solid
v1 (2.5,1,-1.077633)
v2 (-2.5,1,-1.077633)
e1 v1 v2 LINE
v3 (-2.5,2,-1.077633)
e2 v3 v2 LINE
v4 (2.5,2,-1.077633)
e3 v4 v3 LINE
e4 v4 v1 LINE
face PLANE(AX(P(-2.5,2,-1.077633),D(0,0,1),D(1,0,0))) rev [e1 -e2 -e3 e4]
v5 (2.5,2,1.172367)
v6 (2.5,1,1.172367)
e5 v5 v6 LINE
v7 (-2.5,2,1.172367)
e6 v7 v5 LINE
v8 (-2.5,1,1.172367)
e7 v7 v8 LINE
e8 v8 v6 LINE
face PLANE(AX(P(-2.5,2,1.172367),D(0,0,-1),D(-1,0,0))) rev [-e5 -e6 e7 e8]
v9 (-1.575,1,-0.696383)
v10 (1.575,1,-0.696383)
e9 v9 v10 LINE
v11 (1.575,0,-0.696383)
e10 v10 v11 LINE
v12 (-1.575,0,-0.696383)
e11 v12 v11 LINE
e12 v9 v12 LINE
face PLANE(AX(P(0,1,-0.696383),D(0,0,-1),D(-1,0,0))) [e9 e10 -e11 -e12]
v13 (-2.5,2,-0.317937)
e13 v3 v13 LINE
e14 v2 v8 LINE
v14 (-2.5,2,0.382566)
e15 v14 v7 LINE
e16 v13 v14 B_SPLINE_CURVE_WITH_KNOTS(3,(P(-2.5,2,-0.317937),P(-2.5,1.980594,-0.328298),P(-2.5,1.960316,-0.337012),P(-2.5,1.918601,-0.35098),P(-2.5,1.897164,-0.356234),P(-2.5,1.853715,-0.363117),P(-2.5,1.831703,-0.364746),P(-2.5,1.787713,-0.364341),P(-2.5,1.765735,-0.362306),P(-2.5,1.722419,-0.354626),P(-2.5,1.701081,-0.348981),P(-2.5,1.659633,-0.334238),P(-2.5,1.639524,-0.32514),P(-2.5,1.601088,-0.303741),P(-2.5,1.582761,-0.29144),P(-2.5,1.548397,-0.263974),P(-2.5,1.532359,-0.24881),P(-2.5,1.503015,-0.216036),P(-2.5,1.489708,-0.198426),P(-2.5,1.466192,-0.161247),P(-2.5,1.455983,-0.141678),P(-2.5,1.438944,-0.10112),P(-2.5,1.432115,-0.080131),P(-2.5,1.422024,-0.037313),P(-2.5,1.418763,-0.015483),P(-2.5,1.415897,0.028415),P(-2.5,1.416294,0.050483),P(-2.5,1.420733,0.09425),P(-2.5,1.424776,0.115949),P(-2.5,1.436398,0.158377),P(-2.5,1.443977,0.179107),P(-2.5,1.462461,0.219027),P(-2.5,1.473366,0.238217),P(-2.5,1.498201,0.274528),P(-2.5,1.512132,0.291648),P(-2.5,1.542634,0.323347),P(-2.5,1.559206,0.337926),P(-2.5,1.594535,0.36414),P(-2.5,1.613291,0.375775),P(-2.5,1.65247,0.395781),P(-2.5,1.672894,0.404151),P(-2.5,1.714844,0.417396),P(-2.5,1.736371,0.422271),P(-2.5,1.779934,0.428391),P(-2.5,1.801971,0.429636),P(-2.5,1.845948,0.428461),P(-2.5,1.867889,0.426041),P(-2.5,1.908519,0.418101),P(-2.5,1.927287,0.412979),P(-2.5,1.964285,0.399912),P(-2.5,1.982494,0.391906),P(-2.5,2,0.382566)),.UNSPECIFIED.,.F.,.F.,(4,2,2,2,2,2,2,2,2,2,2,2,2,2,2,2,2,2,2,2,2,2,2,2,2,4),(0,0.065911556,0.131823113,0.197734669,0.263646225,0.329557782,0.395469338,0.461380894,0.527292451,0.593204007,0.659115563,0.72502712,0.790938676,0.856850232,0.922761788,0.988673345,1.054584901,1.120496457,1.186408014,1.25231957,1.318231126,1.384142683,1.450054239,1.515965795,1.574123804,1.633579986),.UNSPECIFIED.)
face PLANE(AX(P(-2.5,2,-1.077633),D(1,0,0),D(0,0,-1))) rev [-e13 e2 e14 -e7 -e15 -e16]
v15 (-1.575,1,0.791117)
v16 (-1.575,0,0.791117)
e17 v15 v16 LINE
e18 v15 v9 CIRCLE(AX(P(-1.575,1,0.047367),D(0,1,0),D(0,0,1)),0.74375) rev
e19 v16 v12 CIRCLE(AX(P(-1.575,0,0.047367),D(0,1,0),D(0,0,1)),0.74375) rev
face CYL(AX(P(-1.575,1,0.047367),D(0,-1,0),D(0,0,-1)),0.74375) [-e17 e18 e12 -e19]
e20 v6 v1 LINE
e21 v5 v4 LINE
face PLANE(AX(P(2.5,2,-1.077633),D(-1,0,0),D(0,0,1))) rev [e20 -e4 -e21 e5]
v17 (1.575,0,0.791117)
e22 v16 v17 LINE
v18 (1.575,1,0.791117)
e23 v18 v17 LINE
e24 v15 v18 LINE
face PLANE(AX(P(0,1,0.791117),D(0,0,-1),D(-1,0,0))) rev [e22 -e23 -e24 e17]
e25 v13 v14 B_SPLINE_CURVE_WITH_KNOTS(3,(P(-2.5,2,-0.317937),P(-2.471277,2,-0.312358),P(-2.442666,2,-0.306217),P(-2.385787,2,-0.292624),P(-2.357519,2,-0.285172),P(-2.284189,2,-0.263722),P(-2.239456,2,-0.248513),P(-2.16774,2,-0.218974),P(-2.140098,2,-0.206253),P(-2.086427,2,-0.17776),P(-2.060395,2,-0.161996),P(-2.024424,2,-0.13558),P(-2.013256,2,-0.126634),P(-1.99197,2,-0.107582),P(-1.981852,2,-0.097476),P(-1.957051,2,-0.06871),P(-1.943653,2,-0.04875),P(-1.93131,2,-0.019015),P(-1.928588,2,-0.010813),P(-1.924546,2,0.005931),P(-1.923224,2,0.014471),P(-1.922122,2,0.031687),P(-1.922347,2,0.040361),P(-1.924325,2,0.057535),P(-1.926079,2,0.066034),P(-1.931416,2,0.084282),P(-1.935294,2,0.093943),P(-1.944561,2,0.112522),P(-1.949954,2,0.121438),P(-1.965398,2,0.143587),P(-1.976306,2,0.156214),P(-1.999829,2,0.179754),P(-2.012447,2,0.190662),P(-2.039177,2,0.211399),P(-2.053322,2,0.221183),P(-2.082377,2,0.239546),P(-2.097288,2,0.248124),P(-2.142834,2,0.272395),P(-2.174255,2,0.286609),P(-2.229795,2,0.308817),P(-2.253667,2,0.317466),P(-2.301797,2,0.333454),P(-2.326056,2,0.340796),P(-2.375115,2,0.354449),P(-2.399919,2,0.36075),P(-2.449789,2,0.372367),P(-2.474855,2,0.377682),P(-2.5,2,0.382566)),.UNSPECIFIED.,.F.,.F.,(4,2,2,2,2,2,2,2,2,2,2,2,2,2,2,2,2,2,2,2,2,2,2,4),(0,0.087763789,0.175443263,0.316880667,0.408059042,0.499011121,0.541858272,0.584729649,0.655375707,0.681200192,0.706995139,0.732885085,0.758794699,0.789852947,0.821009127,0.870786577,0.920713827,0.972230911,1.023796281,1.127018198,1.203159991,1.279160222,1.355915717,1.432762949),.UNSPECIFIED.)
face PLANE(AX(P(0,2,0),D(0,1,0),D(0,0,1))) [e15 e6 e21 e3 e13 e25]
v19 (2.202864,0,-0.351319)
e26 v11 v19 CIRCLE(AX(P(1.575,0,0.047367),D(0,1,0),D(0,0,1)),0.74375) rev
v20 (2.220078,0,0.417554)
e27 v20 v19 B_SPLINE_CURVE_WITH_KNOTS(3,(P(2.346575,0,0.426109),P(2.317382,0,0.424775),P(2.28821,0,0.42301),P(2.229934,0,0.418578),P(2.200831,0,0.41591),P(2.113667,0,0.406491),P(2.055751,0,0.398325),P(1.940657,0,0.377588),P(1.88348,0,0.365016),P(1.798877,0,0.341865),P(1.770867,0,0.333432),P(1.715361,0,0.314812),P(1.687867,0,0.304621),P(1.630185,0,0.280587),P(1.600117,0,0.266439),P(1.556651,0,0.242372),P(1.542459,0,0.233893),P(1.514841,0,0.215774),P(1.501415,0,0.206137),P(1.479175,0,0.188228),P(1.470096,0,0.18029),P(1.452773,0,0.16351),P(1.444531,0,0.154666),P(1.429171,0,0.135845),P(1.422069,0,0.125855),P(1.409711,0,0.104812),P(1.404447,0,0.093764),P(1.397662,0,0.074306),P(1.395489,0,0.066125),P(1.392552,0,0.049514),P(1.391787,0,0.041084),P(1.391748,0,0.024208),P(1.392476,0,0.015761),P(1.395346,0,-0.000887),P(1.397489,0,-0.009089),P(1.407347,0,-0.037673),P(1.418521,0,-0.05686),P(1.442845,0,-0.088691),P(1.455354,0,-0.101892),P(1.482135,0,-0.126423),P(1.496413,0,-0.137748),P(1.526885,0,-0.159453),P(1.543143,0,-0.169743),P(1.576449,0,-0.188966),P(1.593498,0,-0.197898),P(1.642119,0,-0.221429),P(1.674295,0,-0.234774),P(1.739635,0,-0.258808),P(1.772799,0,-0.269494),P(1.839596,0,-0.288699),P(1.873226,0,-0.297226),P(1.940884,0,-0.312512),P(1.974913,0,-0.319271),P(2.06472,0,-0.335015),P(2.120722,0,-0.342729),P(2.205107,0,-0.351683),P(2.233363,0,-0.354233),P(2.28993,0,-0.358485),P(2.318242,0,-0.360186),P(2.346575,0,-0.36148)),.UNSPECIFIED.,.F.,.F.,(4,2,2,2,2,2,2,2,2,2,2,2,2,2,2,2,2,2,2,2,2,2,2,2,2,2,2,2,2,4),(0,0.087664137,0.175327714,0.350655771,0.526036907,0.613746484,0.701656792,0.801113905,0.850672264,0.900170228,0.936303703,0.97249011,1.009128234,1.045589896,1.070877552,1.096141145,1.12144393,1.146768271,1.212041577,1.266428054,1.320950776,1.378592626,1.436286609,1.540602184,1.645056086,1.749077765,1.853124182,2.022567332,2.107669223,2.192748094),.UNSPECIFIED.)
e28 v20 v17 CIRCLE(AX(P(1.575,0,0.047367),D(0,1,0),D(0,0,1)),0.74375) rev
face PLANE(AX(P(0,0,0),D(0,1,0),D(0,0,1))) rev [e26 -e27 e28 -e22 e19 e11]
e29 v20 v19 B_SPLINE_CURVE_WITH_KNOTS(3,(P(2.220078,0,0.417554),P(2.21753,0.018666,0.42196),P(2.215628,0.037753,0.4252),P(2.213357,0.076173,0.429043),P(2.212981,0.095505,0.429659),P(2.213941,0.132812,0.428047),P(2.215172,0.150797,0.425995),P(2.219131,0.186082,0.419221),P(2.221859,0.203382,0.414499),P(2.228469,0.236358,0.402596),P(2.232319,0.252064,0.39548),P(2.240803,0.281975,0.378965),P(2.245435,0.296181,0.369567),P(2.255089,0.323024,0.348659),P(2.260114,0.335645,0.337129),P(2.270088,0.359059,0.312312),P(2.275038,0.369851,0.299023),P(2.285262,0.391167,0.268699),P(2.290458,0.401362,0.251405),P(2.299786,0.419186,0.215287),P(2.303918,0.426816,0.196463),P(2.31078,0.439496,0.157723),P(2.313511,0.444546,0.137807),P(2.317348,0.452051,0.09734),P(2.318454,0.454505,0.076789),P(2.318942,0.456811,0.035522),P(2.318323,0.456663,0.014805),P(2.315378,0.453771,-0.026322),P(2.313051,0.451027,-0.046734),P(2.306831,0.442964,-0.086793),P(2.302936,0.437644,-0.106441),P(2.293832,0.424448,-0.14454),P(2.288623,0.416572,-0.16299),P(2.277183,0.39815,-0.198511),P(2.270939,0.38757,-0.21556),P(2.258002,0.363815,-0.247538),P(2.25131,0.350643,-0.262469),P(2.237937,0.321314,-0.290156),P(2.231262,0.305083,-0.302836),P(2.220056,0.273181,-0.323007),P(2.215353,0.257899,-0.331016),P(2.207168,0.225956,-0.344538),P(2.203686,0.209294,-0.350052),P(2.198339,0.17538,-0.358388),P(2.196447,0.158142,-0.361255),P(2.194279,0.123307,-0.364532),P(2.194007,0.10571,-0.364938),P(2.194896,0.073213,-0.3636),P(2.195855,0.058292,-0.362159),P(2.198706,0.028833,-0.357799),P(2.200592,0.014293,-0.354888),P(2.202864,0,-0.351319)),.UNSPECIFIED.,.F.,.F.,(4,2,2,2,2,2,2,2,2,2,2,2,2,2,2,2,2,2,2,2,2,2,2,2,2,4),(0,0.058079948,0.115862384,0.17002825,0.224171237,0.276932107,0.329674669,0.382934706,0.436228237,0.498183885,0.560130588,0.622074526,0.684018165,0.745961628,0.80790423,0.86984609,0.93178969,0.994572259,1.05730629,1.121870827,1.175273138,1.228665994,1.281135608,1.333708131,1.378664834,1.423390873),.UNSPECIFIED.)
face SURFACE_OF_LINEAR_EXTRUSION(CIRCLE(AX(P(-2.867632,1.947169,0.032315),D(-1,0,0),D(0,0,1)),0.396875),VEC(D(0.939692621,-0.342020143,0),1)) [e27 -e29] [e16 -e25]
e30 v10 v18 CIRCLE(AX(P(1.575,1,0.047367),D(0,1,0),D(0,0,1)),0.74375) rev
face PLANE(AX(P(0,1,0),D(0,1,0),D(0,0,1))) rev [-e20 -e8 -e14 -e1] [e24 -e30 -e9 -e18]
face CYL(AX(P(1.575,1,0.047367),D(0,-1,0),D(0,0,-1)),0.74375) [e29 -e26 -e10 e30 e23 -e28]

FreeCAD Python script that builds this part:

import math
import FreeCAD as App
import Part
import Sketcher

V = App.Vector
Q = App.Units.Quantity


def add_polygon(sketch, points):
    """Adds a closed chain of lines whose ends are joined by coincident constraints."""
    first, n = sketch.GeometryCount, len(points)
    for a, b in zip(points, points[1:] + points[:1]):
        sketch.addGeometry(Part.LineSegment(App.Vector(*a, 0), App.Vector(*b, 0)), False)
    for i in range(n):
        sketch.addConstraint(Sketcher.Constraint("Coincident", first + i, 2, first + (i + 1) % n, 1))

doc = App.newDocument("Part")
body = doc.addObject("PartDesign::Body", "Body")

# Sketch on XZ plane
sketch1 = body.newObject("Sketcher::SketchObject", "Sketch")
sketch1.AttachmentSupport = (doc.getObject("XZ_Plane"), [""])
sketch1.MapMode = "FlatFace"
sketch1.addGeometry([
    Part.LineSegment(V(1.6, -0.7, 0), V(-1.6, -0.7, 0)),
    Part.ArcOfCircle(Part.Circle(V(-1.6, 0, 0), V(0, 0, 1), 0.7), math.radians(90), math.radians(270)),
    Part.LineSegment(V(-1.6, 0.8, 0), V(1.6, 0.8, 0)),
    Part.ArcOfCircle(Part.Circle(V(1.6, 0, 0), V(0, 0, 1), 0.7), math.radians(-90), math.radians(90)),
], False)
sketch1.addConstraint([
    Sketcher.Constraint("Tangent", 0, 2, 1, 2),
    Sketcher.Constraint("Tangent", 1, 1, 2, 1),
    Sketcher.Constraint("Tangent", 2, 2, 3, 2),
    Sketcher.Constraint("Tangent", 3, 1, 0, 1),
    Sketcher.Constraint("Horizontal", 0),
    Sketcher.Constraint("Horizontal", 2),
    Sketcher.Constraint("DistanceX", 0, 2, 0, 1, Q("3.15 mm")),
    Sketcher.Constraint("Radius", 1, Q("0.74375 mm")),
    Sketcher.Constraint("DistanceX", 1, 3, -1, 1, Q("1.575 mm")),
    Sketcher.Constraint("DistanceY", -1, 1, 1, 3, Q("0.047367 mm")),
])
pad1 = body.newObject("PartDesign::Pad", "Pad")
pad1.Profile = sketch1
pad1.Length = 1
pad1.Reversed = True

# Sketch on XZ plane
sketch2 = body.newObject("Sketcher::SketchObject", "Sketch001")
sketch2.AttachmentSupport = (doc.getObject("XZ_Plane"), [""])
sketch2.MapMode = "FlatFace"
sketch2.AttachmentOffset = App.Placement(V(0, 0, -1), App.Rotation())
add_polygon(sketch2, [(-2.5, -1.1), (-2.5, 1.2), (2.5, 1.2), (2.5, -1.1)])  # lines 0-3
sketch2.addConstraint([
    Sketcher.Constraint("Vertical", 0),
    Sketcher.Constraint("Horizontal", 1),
    Sketcher.Constraint("Vertical", 2),
    Sketcher.Constraint("Horizontal", 3),
    Sketcher.Constraint("DistanceX", 1, 1, 1, 2, Q("5 mm")),
    Sketcher.Constraint("DistanceY", 0, 1, 0, 2, Q("2.25 mm")),
    Sketcher.Constraint("DistanceX", 0, 2, -1, 1, Q("2.5 mm")),
    Sketcher.Constraint("DistanceY", -1, 1, 0, 2, Q("1.172367 mm")),
])
pad2 = body.newObject("PartDesign::Pad", "Pad001")
pad2.Profile = sketch2
pad2.Length = 1
pad2.Reversed = True

# Sketch on YZ plane
sketch3 = body.newObject("Sketcher::SketchObject", "Sketch002")
sketch3.AttachmentSupport = (doc.getObject("YZ_Plane"), [""])
sketch3.MapMode = "FlatFace"
sketch3.AttachmentOffset = App.Placement(V(0, 0, 2.5), App.Rotation())
sketch3.addGeometry(Part.Circle(V(-0.01, 0.03, 0), V(0, 0, 1), 0.4), False)
sketch3.addConstraint([
    Sketcher.Constraint("Diameter", 0, Q("0.79375 mm")),
    Sketcher.Constraint("DistanceX", 0, 3, -1, 1, Q("0.006489 mm")),
    Sketcher.Constraint("DistanceY", -1, 1, 0, 3, Q("0.032315 mm")),
])

# Sketch on an angled plane
sketch4 = body.newObject("Sketcher::SketchObject", "Sketch003")
sketch4.Placement = App.Placement(V(0.292444, 0.803485, 0), App.Rotation(V(-0.939692621, 0.342020143, 0), V(0, 0, 1), V(0.342020143, 0.939692621, 0), "ZXY"))
sketch4.addGeometry(Part.LineSegment(V(-2, 0, 0), V(3, 0, 0)), False)
sketch4.addConstraint([
    Sketcher.Constraint("Horizontal", 0),
    Sketcher.Constraint("PointOnObject", 0, 1, -1),
    Sketcher.Constraint("DistanceX", 0, 1, 0, 2, Q("5.712114 mm")),
    Sketcher.Constraint("DistanceX", 0, 1, -1, 1, Q("2.349232 mm")),
])
doc.recompute()

subtractivepipe = body.newObject("PartDesign::SubtractivePipe", "SubtractivePipe")
subtractivepipe.Profile = sketch3
subtractivepipe.Spine = (sketch4, ["Edge1"])

doc.recompute()
